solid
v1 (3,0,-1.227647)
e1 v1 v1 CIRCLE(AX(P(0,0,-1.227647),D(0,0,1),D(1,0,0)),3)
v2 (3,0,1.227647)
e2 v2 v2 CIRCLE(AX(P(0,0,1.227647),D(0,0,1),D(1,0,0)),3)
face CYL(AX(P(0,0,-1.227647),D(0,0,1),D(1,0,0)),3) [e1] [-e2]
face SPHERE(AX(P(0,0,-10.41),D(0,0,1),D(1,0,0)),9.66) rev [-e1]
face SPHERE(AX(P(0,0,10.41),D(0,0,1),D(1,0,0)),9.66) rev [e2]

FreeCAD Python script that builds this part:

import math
import FreeCAD as App
import Part
import Sketcher
from FreeCAD import Vector

doc = App.newDocument("Part")
body = doc.addObject("PartDesign::Body", "Body")

# Sketch on XZ plane
sketch1 = doc.addObject("Sketcher::SketchObject", "Sketch")
body.addObject(sketch1)
sketch1.AttachmentSupport = (doc.XZ_Plane, [""])
sketch1.MapMode = "FlatFace"
sketch1.addGeometry([
    Part.LineSegment(Vector(0, -0.8, 0), Vector(0, 0.8, 0)),
    Part.ArcOfCircle(Part.Circle(Vector(0, 10.4, 0), Vector(0, 0, 1), 9.7), math.radians(-90), math.radians(-71.91)),
    Part.LineSegment(Vector(3, 1.2, 0), Vector(3, -1.2, 0)),
    Part.ArcOfCircle(Part.Circle(Vector(0, -10.4, 0), Vector(0, 0, 1), 9.7), math.radians(71.91), math.radians(90)),
], False)
sketch1.addConstraint([
    Sketcher.Constraint("Coincident", 0, 2, 1, 1),
    Sketcher.Constraint("Coincident", 1, 2, 2, 1),
    Sketcher.Constraint("Coincident", 2, 2, 3, 1),
    Sketcher.Constraint("Coincident", 3, 2, 0, 1),
    Sketcher.Constraint("Vertical", 0),
    Sketcher.Constraint("Vertical", 2),
    Sketcher.Constraint("Equal", 1, 3),
    Sketcher.Constraint("Symmetric", 1, 3, 3, 3, -1, 1),
    Sketcher.Constraint("PointOnObject", 1, 3, -2),
    Sketcher.Constraint("PointOnObject", 0, 2, -2),
    Sketcher.Constraint("Radius", 1, 9.66),
    Sketcher.Constraint("DistanceY", 0, 1, 0, 2, 1.5),
    Sketcher.Constraint("DistanceX", -1, 1, 1, 2, 3.0),
])
revolution = doc.addObject("PartDesign::Revolution", "Revolution")
body.addObject(revolution)
revolution.Profile = sketch1
revolution.ReferenceAxis = (sketch1, ["V_Axis"])
revolution.Angle = 360

doc.recompute()
